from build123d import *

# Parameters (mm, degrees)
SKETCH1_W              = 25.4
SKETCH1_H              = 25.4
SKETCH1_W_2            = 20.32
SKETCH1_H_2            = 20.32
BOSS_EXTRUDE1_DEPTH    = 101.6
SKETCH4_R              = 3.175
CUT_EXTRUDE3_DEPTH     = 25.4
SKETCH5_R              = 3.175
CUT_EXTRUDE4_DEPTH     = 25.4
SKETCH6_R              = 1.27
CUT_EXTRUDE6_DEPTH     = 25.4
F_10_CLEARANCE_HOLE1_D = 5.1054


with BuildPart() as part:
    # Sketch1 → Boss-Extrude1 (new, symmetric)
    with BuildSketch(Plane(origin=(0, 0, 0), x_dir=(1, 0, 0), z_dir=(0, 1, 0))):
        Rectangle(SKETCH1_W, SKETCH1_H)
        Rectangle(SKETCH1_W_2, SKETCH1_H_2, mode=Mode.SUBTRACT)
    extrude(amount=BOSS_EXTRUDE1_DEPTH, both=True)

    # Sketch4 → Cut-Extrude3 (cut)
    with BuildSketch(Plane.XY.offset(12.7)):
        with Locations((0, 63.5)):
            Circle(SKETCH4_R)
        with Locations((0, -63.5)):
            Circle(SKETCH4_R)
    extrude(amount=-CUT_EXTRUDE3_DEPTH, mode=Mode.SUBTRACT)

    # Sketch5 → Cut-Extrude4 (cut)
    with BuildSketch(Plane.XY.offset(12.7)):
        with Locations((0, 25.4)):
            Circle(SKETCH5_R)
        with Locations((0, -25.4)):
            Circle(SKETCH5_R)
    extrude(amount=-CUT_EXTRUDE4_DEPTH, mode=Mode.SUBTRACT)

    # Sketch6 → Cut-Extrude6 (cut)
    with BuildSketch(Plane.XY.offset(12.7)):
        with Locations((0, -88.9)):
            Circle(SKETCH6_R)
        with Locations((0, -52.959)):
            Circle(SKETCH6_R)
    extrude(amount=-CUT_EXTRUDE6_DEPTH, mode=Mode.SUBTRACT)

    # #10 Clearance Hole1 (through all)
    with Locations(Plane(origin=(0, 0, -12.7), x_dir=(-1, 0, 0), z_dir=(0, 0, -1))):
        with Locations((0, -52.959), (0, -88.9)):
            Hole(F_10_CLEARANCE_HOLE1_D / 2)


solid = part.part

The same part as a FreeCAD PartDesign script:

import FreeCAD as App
import Part
import Sketcher

V = App.Vector
Q = App.Units.Quantity

doc = App.newDocument("Part")
body = doc.addObject("PartDesign::Body", "Body")

# Sketch on XZ plane
sketch1 = body.newObject("Sketcher::SketchObject", "Sketch")
sketch1.AttachmentSupport = (doc.getObject("XZ_Plane"), [""])
sketch1.MapMode = "FlatFace"
sketch1.addGeometry([
    Part.LineSegment(V(-13, -13, 0), V(-13, 13, 0)),  # 0
    Part.LineSegment(V(-13, 13, 0), V(13, 13, 0)),  # 1
    Part.LineSegment(V(13, 13, 0), V(13, -13, 0)),  # 2
    Part.LineSegment(V(13, -13, 0), V(-13, -13, 0)),  # 3
    Part.LineSegment(V(10, 10, 0), V(-10, 10, 0)),  # 4
    Part.LineSegment(V(-10, 10, 0), V(-10, -10, 0)),  # 5
    Part.LineSegment(V(-10, -10, 0), V(10, -10, 0)),  # 6
    Part.LineSegment(V(10, -10, 0), V(10, 10, 0)),  # 7
], False)
sketch1.addConstraint([
    Sketcher.Constraint("Coincident", 0, 2, 1, 1),
    Sketcher.Constraint("Coincident", 1, 2, 2, 1),
    Sketcher.Constraint("Coincident", 2, 2, 3, 1),
    Sketcher.Constraint("Coincident", 3, 2, 0, 1),
    Sketcher.Constraint("Coincident", 4, 2, 5, 1),
    Sketcher.Constraint("Coincident", 5, 2, 6, 1),
    Sketcher.Constraint("Coincident", 6, 2, 7, 1),
    Sketcher.Constraint("Coincident", 7, 2, 4, 1),
    Sketcher.Constraint("Vertical", 0),
    Sketcher.Constraint("Horizontal", 1),
    Sketcher.Constraint("Vertical", 2),
    Sketcher.Constraint("Horizontal", 3),
    Sketcher.Constraint("Horizontal", 4),
    Sketcher.Constraint("Vertical", 5),
    Sketcher.Constraint("Horizontal", 6),
    Sketcher.Constraint("Vertical", 7),
    Sketcher.Constraint("Symmetric", 0, 2, 2, 2, -1, 1),
    Sketcher.Constraint("Symmetric", 4, 2, 6, 2, -1, 1),
    Sketcher.Constraint("Equal", 3, 0),
    Sketcher.Constraint("Equal", 6, 5),
    Sketcher.Constraint("DistanceX", 1, 1, 1, 2, Q("1 in")),
    Sketcher.Constraint("DistanceX", 4, 2, 4, 1, Q("0.8 in")),
])
pad1 = body.newObject("PartDesign::Pad", "Pad")
pad1.Profile = sketch1
pad1.Length = Q("8 in")
pad1.Midplane = True

# Sketch on XY plane
sketch2 = body.newObject("Sketcher::SketchObject", "Sketch001")
sketch2.AttachmentSupport = (doc.getObject("XY_Plane"), [""])
sketch2.MapMode = "FlatFace"
sketch2.AttachmentOffset = App.Placement(V(0, 0, 0.5 * 25.4), App.Rotation())
sketch2.addGeometry([
    Part.Circle(V(0, 63.5, 0), V(0, 0, 1), 3.2),
    Part.Circle(V(0, -63.5, 0), V(0, 0, 1), 3.2),
], False)
sketch2.addConstraint([
    Sketcher.Constraint("Equal", 0, 1),
    Sketcher.Constraint("Symmetric", 0, 3, 1, 3, -1, 1),
    Sketcher.Constraint("PointOnObject", 0, 3, -2),
    Sketcher.Constraint("Diameter", 0, Q("0.25 in")),
    Sketcher.Constraint("DistanceY", 1, 3, 0, 3, Q("5 in")),
])
pocket1 = body.newObject("PartDesign::Pocket", "Pocket")
pocket1.Profile = sketch2
pocket1.Length = Q("1 in")

# Sketch on XY plane
sketch3 = body.newObject("Sketcher::SketchObject", "Sketch002")
sketch3.AttachmentSupport = (doc.getObject("XY_Plane"), [""])
sketch3.MapMode = "FlatFace"
sketch3.AttachmentOffset = App.Placement(V(0, 0, 0.5 * 25.4), App.Rotation())
sketch3.addGeometry([
    Part.Circle(V(0, 25.4, 0), V(0, 0, 1), 3.2),
    Part.Circle(V(0, -25.4, 0), V(0, 0, 1), 3.2),
], False)
sketch3.addConstraint([
    Sketcher.Constraint("Equal", 0, 1),
    Sketcher.Constraint("Symmetric", 0, 3, 1, 3, -1, 1),
    Sketcher.Constraint("PointOnObject", 0, 3, -2),
    Sketcher.Constraint("Diameter", 0, Q("0.25 in")),
    Sketcher.Constraint("DistanceY", -1, 1, 0, 3, Q("1 in")),
])
pocket2 = body.newObject("PartDesign::Pocket", "Pocket001")
pocket2.Profile = sketch3
pocket2.Length = Q("1 in")

# Sketch on XY plane
sketch4 = body.newObject("Sketcher::SketchObject", "Sketch003")
sketch4.AttachmentSupport = (doc.getObject("XY_Plane"), [""])
sketch4.MapMode = "FlatFace"
sketch4.AttachmentOffset = App.Placement(V(0, 0, 0.5 * 25.4), App.Rotation())
sketch4.addGeometry([
    Part.Circle(V(0, -88.9, 0), V(0, 0, 1), 1.3),
    Part.Circle(V(0, -53, 0), V(0, 0, 1), 1.3),
], False)
sketch4.addConstraint([
    Sketcher.Constraint("Equal", 0, 1),
    Sketcher.Constraint("PointOnObject", 0, 3, -2),
    Sketcher.Constraint("PointOnObject", 1, 3, -2),
    Sketcher.Constraint("Diameter", 0, Q("0.1 in")),
    Sketcher.Constraint("DistanceY", 0, 3, -1, 1, Q("3.5 in")),
    Sketcher.Constraint("DistanceY", 1, 3, -1, 1, Q("2.085 in")),
])
pocket3 = body.newObject("PartDesign::Pocket", "Pocket002")
pocket3.Profile = sketch4
pocket3.Length = Q("1 in")

# Sketch on XY plane
sketch5 = body.newObject("Sketcher::SketchObject", "Sketch004")
sketch5.AttachmentSupport = (doc.getObject("XY_Plane"), [""])
sketch5.MapMode = "FlatFace"
sketch5.AttachmentOffset = App.Placement(V(0, 0, -0.5 * 25.4), App.Rotation())
sketch5.addGeometry([
    Part.Circle(V(0, -53, 0), V(0, 0, 1), 2.6),
    Part.Circle(V(0, -88.9, 0), V(0, 0, 1), 2.6),
], False)
sketch5.addConstraint([
    Sketcher.Constraint("Equal", 0, 1),
    Sketcher.Constraint("PointOnObject", 0, 3, -2),
    Sketcher.Constraint("PointOnObject", 1, 3, -2),
    Sketcher.Constraint("Diameter", 0, Q("0.201 in")),
    Sketcher.Constraint("DistanceY", 1, 3, -1, 1, Q("3.5 in")),
    Sketcher.Constraint("DistanceY", 0, 3, -1, 1, Q("2.085 in")),
])
doc.recompute()
hole = body.newObject("PartDesign::Hole", "Hole")
hole.Profile = sketch5
hole.ThreadType = "None"
hole.Diameter = Q("0.201 in")
hole.DepthType = "ThroughAll"
hole.Reversed = True

doc.recompute()
